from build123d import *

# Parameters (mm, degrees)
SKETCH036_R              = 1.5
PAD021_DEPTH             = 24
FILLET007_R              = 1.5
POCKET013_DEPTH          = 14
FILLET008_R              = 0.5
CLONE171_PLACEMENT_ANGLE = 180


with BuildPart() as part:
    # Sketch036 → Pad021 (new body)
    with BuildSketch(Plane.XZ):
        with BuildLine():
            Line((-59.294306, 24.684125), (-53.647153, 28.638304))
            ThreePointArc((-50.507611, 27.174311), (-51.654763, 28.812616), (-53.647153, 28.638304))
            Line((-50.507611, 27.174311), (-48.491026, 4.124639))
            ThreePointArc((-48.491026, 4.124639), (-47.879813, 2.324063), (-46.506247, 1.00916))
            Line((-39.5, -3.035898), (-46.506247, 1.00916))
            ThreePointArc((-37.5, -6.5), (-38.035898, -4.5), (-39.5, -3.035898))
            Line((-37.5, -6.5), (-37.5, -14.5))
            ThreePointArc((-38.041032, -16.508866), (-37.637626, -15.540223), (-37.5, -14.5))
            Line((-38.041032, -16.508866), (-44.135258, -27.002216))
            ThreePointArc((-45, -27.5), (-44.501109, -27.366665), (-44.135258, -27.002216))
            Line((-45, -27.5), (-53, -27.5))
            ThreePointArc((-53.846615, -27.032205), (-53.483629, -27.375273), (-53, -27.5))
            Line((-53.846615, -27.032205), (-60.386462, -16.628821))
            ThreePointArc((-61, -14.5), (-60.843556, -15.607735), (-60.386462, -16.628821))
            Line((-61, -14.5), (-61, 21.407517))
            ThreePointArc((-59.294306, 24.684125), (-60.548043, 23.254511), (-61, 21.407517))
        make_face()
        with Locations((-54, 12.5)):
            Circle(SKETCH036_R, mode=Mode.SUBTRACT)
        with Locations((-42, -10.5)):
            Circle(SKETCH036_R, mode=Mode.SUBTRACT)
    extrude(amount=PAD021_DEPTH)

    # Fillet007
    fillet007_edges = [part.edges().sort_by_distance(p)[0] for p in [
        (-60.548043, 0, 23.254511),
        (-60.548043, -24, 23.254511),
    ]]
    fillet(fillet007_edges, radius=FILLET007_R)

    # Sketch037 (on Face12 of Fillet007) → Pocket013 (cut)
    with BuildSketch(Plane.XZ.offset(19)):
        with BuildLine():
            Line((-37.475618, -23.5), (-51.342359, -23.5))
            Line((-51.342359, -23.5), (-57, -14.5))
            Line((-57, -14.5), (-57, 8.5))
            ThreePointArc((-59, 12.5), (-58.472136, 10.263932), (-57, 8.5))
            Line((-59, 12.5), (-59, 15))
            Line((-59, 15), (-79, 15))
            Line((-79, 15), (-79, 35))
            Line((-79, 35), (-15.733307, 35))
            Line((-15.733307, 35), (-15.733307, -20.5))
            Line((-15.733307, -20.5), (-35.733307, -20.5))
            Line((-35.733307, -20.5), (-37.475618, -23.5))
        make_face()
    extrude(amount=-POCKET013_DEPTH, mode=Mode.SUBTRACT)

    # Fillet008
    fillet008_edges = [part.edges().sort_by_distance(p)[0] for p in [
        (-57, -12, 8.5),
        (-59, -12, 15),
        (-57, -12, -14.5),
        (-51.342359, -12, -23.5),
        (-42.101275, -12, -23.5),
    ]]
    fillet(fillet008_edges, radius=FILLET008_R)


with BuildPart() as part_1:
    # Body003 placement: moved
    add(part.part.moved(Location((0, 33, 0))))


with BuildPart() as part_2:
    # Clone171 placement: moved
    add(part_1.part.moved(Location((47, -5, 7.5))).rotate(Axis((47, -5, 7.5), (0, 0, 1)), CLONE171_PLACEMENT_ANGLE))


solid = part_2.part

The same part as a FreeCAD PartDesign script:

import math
import FreeCAD as App
import Part
import Sketcher
Q = App.Units.Quantity


def edges_at(feature, points):
    """Names of the edges that pass closest to the given points."""
    edges = feature.Shape.Edges
    near = lambda p: min(range(len(edges)), key=lambda i: edges[i].distToShape(Part.Vertex(*p))[0])
    return sorted({f"Edge{near(p) + 1}" for p in points})

doc = App.newDocument("Part")
params = doc.addObject("Spreadsheet::Sheet", "Params")
for row, (alias, value) in enumerate([
    ("sketch1_diameter", "3 mm"),
    ("sketch1_radius", "0.999999 mm"),
    ("sketch1_radius2", "3.999999 mm"),
    ("sketch1_radius3", "1.999999 mm"),
    ("sketch1_width", "8 mm"),
    ("pad1_length", "24 mm"),
    ("fillet_radius", "1.5 mm"),
    ("sketch2_radius", "5 mm"),
    ("sketch2_width", "20 mm"),
    ("sketch2_height", "23 mm"),
    ("sketch2_height2", "55.5 mm"),
    ("sketch2_height3", "2.5 mm"),
    ("pocket1_length", "14 mm"),
    ("fillet2_radius", "0.5 mm"),
], start=1):
    params.set(f"A{row}", alias)
    params.set(f"B{row}", "=" + value)
    params.setAlias(f"B{row}", alias)

body = doc.addObject("PartDesign::Body", "Body")

# Sketch on XZ plane
sketch1 = doc.addObject("Sketcher::SketchObject", "Sketch")
body.addObject(sketch1)
sketch1.AttachmentSupport = (doc.XZ_Plane, [""])
sketch1.MapMode = "FlatFace"
sketch1.addGeometry([
    Part.LineSegment(App.Vector(-53.6, 28.6, 0), App.Vector(-59.3, 24.7, 0)),  # 0
    Part.ArcOfCircle(Part.Circle(App.Vector(-57, 21.4, 0), App.Vector(0, 0, 1), 4), math.radians(125), math.radians(180)),  # 1
    Part.LineSegment(App.Vector(-61, 21.4, 0), App.Vector(-61, -14.5, 0)),  # 2
    Part.ArcOfCircle(Part.Circle(App.Vector(-57, -14.5, 0), App.Vector(0, 0, 1), 4), math.radians(-180), math.radians(-148)),  # 3
    Part.LineSegment(App.Vector(-60.4, -16.6, 0), App.Vector(-53.8, -27, 0)),  # 4
    Part.ArcOfCircle(Part.Circle(App.Vector(-53, -26.5, 0), App.Vector(0, 0, 1), 1), math.radians(-148), math.radians(-90)),  # 5
    Part.LineSegment(App.Vector(-53, -27.5, 0), App.Vector(-45, -27.5, 0)),  # 6
    Part.ArcOfCircle(Part.Circle(App.Vector(-45, -26.5, 0), App.Vector(0, 0, 1), 1), math.radians(-90), math.radians(-30)),  # 7
    Part.LineSegment(App.Vector(-44.1, -27, 0), App.Vector(-38, -16.5, 0)),  # 8
    Part.ArcOfCircle(Part.Circle(App.Vector(-41.5, -14.5, 0), App.Vector(0, 0, 1), 4), math.radians(-30), math.radians(0)),  # 9
    Part.LineSegment(App.Vector(-37.5, -14.5, 0), App.Vector(-37.5, -6.5, 0)),  # 10
    Part.ArcOfCircle(Part.Circle(App.Vector(-41.5, -6.5, 0), App.Vector(0, 0, 1), 4), math.radians(0), math.radians(60)),  # 11
    Part.LineSegment(App.Vector(-39.5, -3, 0), App.Vector(-46.5, 1, 0)),  # 12
    Part.ArcOfCircle(Part.Circle(App.Vector(-44.5, 4.5, 0), App.Vector(0, 0, 1), 4), math.radians(-175), math.radians(-120)),  # 13
    Part.LineSegment(App.Vector(-48.5, 4.1, 0), App.Vector(-50.5, 27.2, 0)),  # 14
    Part.ArcOfCircle(Part.Circle(App.Vector(-52.5, 27, 0), App.Vector(0, 0, 1), 2), math.radians(5), math.radians(125)),  # 15
    Part.Circle(App.Vector(-42, -10.5, 0), App.Vector(0, 0, 1), 1.5),  # 16
    Part.Circle(App.Vector(-54, 12.5, 0), App.Vector(0, 0, 1), 1.5),  # 17
], False)
sketch1.addConstraint([
    Sketcher.Constraint("Tangent", 0, 2, 1, 1),
    Sketcher.Constraint("Tangent", 1, 2, 2, 1),
    Sketcher.Constraint("Tangent", 2, 2, 3, 1),
    Sketcher.Constraint("Tangent", 3, 2, 4, 1),
    Sketcher.Constraint("Tangent", 4, 2, 5, 1),
    Sketcher.Constraint("Tangent", 5, 2, 6, 1),
    Sketcher.Constraint("Tangent", 6, 2, 7, 1),
    Sketcher.Constraint("Tangent", 7, 2, 8, 1),
    Sketcher.Constraint("Tangent", 8, 2, 9, 1),
    Sketcher.Constraint("Tangent", 9, 2, 10, 1),
    Sketcher.Constraint("Tangent", 10, 2, 11, 1),
    Sketcher.Constraint("Tangent", 11, 2, 12, 1),
    Sketcher.Constraint("Tangent", 12, 2, 13, 2),
    Sketcher.Constraint("Tangent", 13, 1, 14, 1),
    Sketcher.Constraint("Tangent", 14, 2, 15, 1),
    Sketcher.Constraint("Tangent", 15, 2, 0, 1),
    Sketcher.Constraint("Vertical", 2),
    Sketcher.Constraint("Horizontal", 6),
    Sketcher.Constraint("Vertical", 10),
    Sketcher.Constraint("Equal", 5, 7),
    Sketcher.Constraint("Equal", 11, 13),
    Sketcher.Constraint("Equal", 16, 17),
    Sketcher.Constraint("Horizontal", 2, 2, 9, 2),
    Sketcher.Constraint("Equal", 6, 10),
    Sketcher.Constraint("Diameter", 16, Q("3 mm")),
    Sketcher.Constraint("Radius", 5, Q("0.999999 mm")),
    Sketcher.Constraint("Radius", 11, Q("3.999999 mm")),
    Sketcher.Constraint("Radius", 15, Q("1.999999 mm")),
    Sketcher.Constraint("DistanceX", 6, 1, 6, 2, Q("8 mm")),
    Sketcher.Constraint("Angle", 0, Q("-145.000001 deg")),
    Sketcher.Constraint("Angle", 12, Q("150.000004 deg")),
    Sketcher.Constraint("Angle", 14, Q("95 deg")),
    Sketcher.Constraint("DistanceX", 5, 3, -1, 1, Q("53 mm")),
    Sketcher.Constraint("DistanceY", -1, 1, 15, 3, Q("27.000002 mm")),
    Sketcher.Constraint("DistanceX", 16, 3, -1, 1, Q("42 mm")),
    Sketcher.Constraint("DistanceX", 17, 3, -1, 1, Q("54 mm")),
    Sketcher.Constraint("DistanceX", 1, 2, -1, 1, Q("61 mm")),
    Sketcher.Constraint("DistanceX", 15, 3, 11, 3, Q("11 mm")),
    Sketcher.Constraint("DistanceY", 16, 3, 11, 3, Q("4.000001 mm")),
    Sketcher.Constraint("DistanceY", 11, 3, 17, 3, Q("18.999999 mm")),
    Sketcher.Constraint("DistanceY", 5, 3, 2, 2, Q("12.000001 mm")),
    Sketcher.Constraint("DistanceY", 3, 3, -1, 1, Q("14.499999 mm")),
    Sketcher.Constraint("DistanceX", 11, 3, -1, 1, Q("41.499999 mm")),
    Sketcher.Constraint("Radius", 1, Q("4.000004 mm")),
    Sketcher.Constraint("Radius", 3, Q("4.000007 mm")),
    Sketcher.Constraint("Radius", 9, Q("4.000015 mm")),
])
sketch1.setExpression("Constraints[24]", "Params.sketch1_diameter")
sketch1.setExpression("Constraints[25]", "Params.sketch1_radius")
sketch1.setExpression("Constraints[26]", "Params.sketch1_radius2")
sketch1.setExpression("Constraints[27]", "Params.sketch1_radius3")
sketch1.setExpression("Constraints[28]", "Params.sketch1_width")
pad1 = doc.addObject("PartDesign::Pad", "Pad")
body.addObject(pad1)
pad1.Profile = sketch1
pad1.setExpression("Length", "Params.pad1_length")
doc.recompute()

fillet = doc.addObject("PartDesign::Fillet", "Fillet")
body.addObject(fillet)
fillet.Base = (pad1, edges_at(pad1, [(-60.548, 0, 23.255), (-60.548, -24, 23.255)]))
fillet.setExpression("Radius", "Params.fillet_radius")

# Sketch on XZ plane
sketch2 = doc.addObject("Sketcher::SketchObject", "Sketch001")
body.addObject(sketch2)
sketch2.AttachmentSupport = (doc.XZ_Plane, [""])
sketch2.MapMode = "FlatFace"
sketch2.AttachmentOffset = App.Placement(App.Vector(0, 0, 19), App.Rotation())
sketch2.addGeometry([
    Part.LineSegment(App.Vector(-51.3, -23.5, 0), App.Vector(-37.5, -23.5, 0)),  # 0
    Part.LineSegment(App.Vector(-37.5, -23.5, 0), App.Vector(-35.7, -20.5, 0)),  # 1
    Part.LineSegment(App.Vector(-35.7, -20.5, 0), App.Vector(-15.7, -20.5, 0)),  # 2
    Part.LineSegment(App.Vector(-15.7, -20.5, 0), App.Vector(-15.7, 35, 0)),  # 3
    Part.LineSegment(App.Vector(-15.7, 35, 0), App.Vector(-79, 35, 0)),  # 4
    Part.LineSegment(App.Vector(-79, 35, 0), App.Vector(-79, 15, 0)),  # 5
    Part.LineSegment(App.Vector(-79, 15, 0), App.Vector(-59, 15, 0)),  # 6
    Part.LineSegment(App.Vector(-59, 15, 0), App.Vector(-59, 12.5, 0)),  # 7
    Part.ArcOfCircle(Part.Circle(App.Vector(-54, 12.5, 0), App.Vector(0, 0, 1), 5), math.radians(180), math.radians(233)),  # 8
    Part.LineSegment(App.Vector(-57, 8.5, 0), App.Vector(-57, -14.5, 0)),  # 9
    Part.LineSegment(App.Vector(-57, -14.5, 0), App.Vector(-51.3, -23.5, 0)),  # 10
], False)
sketch2.addConstraint([
    Sketcher.Constraint("Coincident", 0, 2, 1, 1),
    Sketcher.Constraint("Coincident", 1, 2, 2, 1),
    Sketcher.Constraint("Coincident", 2, 2, 3, 1),
    Sketcher.Constraint("Coincident", 3, 2, 4, 1),
    Sketcher.Constraint("Coincident", 4, 2, 5, 1),
    Sketcher.Constraint("Coincident", 5, 2, 6, 1),
    Sketcher.Constraint("Coincident", 6, 2, 7, 1),
    Sketcher.Constraint("Tangent", 7, 2, 8, 1),
    Sketcher.Constraint("Coincident", 8, 2, 9, 1),
    Sketcher.Constraint("Coincident", 9, 2, 10, 1),
    Sketcher.Constraint("Coincident", 10, 2, 0, 1),
    Sketcher.Constraint("Horizontal", 0),
    Sketcher.Constraint("Horizontal", 2),
    Sketcher.Constraint("Vertical", 3),
    Sketcher.Constraint("Horizontal", 4),
    Sketcher.Constraint("Vertical", 5),
    Sketcher.Constraint("Horizontal", 6),
    Sketcher.Constraint("Vertical", 7),
    Sketcher.Constraint("Vertical", 9),
    Sketcher.Constraint("Equal", 2, 6),
    Sketcher.Constraint("Equal", 6, 5),
    Sketcher.Constraint("Radius", 8, Q("5 mm")),
    Sketcher.Constraint("DistanceX", 2, 1, 2, 2, Q("20 mm")),
    Sketcher.Constraint("DistanceY", 9, 2, 9, 1, Q("23 mm")),
    Sketcher.Constraint("DistanceY", 3, 1, 3, 2, Q("55.5 mm")),
    Sketcher.Constraint("DistanceY", 7, 2, 7, 1, Q("2.5 mm")),
    Sketcher.Constraint("DistanceX", 8, 3, -1, 1, Q("54 mm")),
    Sketcher.Constraint("DistanceY", -1, 1, 3, 2, Q("35 mm")),
    Sketcher.Constraint("DistanceX", 8, 2, -1, 1, Q("57 mm")),
    Sketcher.Constraint("DistanceY", 0, 2, 8, 3, Q("36 mm")),
    Sketcher.Constraint("DistanceX", 0, 1, 0, 2, Q("13.866741 mm")),
    Sketcher.Constraint("DistanceX", 4, 2, 4, 1, Q("63.266693 mm")),
    Sketcher.Constraint("DistanceX", 10, 2, -1, 1, Q("51.342359 mm")),
])
sketch2.setExpression("Constraints[21]", "Params.sketch2_radius")
sketch2.setExpression("Constraints[22]", "Params.sketch2_width")
sketch2.setExpression("Constraints[23]", "Params.sketch2_height")
sketch2.setExpression("Constraints[24]", "Params.sketch2_height2")
sketch2.setExpression("Constraints[25]", "Params.sketch2_height3")
pocket1 = doc.addObject("PartDesign::Pocket", "Pocket")
body.addObject(pocket1)
pocket1.Profile = sketch2
pocket1.setExpression("Length", "Params.pocket1_length")
doc.recompute()

fillet2 = doc.addObject("PartDesign::Fillet", "Fillet001")
body.addObject(fillet2)
fillet2.Base = (pocket1, edges_at(pocket1, [
    (-57, -12, 8.5),
    (-59, -12, 15),
    (-57, -12, -14.5),
    (-51.342, -12, -23.5),
    (-42.101, -12, -23.5),
]))
fillet2.setExpression("Radius", "Params.fillet2_radius")
body2 = doc.addObject("PartDesign::Body", "Body001")
doc.recompute()

body.Placement = App.Placement(App.Vector(0, 33, 0), App.Rotation(App.Vector(0, 0, 1), 0))
boolean = doc.addObject("PartDesign::Boolean", "Boolean")
body2.addObject(boolean)
boolean.Type = "Fuse"
boolean.addObjects([body])
body3 = doc.addObject("PartDesign::Body", "Body002")
doc.recompute()

body2.Placement = App.Placement(App.Vector(47, -5, 7.5), App.Rotation(App.Vector(0, 0, 1), 180))
boolean2 = doc.addObject("PartDesign::Boolean", "Boolean001")
body3.addObject(boolean2)
boolean2.Type = "Fuse"
boolean2.addObjects([body2])

doc.recompute()
